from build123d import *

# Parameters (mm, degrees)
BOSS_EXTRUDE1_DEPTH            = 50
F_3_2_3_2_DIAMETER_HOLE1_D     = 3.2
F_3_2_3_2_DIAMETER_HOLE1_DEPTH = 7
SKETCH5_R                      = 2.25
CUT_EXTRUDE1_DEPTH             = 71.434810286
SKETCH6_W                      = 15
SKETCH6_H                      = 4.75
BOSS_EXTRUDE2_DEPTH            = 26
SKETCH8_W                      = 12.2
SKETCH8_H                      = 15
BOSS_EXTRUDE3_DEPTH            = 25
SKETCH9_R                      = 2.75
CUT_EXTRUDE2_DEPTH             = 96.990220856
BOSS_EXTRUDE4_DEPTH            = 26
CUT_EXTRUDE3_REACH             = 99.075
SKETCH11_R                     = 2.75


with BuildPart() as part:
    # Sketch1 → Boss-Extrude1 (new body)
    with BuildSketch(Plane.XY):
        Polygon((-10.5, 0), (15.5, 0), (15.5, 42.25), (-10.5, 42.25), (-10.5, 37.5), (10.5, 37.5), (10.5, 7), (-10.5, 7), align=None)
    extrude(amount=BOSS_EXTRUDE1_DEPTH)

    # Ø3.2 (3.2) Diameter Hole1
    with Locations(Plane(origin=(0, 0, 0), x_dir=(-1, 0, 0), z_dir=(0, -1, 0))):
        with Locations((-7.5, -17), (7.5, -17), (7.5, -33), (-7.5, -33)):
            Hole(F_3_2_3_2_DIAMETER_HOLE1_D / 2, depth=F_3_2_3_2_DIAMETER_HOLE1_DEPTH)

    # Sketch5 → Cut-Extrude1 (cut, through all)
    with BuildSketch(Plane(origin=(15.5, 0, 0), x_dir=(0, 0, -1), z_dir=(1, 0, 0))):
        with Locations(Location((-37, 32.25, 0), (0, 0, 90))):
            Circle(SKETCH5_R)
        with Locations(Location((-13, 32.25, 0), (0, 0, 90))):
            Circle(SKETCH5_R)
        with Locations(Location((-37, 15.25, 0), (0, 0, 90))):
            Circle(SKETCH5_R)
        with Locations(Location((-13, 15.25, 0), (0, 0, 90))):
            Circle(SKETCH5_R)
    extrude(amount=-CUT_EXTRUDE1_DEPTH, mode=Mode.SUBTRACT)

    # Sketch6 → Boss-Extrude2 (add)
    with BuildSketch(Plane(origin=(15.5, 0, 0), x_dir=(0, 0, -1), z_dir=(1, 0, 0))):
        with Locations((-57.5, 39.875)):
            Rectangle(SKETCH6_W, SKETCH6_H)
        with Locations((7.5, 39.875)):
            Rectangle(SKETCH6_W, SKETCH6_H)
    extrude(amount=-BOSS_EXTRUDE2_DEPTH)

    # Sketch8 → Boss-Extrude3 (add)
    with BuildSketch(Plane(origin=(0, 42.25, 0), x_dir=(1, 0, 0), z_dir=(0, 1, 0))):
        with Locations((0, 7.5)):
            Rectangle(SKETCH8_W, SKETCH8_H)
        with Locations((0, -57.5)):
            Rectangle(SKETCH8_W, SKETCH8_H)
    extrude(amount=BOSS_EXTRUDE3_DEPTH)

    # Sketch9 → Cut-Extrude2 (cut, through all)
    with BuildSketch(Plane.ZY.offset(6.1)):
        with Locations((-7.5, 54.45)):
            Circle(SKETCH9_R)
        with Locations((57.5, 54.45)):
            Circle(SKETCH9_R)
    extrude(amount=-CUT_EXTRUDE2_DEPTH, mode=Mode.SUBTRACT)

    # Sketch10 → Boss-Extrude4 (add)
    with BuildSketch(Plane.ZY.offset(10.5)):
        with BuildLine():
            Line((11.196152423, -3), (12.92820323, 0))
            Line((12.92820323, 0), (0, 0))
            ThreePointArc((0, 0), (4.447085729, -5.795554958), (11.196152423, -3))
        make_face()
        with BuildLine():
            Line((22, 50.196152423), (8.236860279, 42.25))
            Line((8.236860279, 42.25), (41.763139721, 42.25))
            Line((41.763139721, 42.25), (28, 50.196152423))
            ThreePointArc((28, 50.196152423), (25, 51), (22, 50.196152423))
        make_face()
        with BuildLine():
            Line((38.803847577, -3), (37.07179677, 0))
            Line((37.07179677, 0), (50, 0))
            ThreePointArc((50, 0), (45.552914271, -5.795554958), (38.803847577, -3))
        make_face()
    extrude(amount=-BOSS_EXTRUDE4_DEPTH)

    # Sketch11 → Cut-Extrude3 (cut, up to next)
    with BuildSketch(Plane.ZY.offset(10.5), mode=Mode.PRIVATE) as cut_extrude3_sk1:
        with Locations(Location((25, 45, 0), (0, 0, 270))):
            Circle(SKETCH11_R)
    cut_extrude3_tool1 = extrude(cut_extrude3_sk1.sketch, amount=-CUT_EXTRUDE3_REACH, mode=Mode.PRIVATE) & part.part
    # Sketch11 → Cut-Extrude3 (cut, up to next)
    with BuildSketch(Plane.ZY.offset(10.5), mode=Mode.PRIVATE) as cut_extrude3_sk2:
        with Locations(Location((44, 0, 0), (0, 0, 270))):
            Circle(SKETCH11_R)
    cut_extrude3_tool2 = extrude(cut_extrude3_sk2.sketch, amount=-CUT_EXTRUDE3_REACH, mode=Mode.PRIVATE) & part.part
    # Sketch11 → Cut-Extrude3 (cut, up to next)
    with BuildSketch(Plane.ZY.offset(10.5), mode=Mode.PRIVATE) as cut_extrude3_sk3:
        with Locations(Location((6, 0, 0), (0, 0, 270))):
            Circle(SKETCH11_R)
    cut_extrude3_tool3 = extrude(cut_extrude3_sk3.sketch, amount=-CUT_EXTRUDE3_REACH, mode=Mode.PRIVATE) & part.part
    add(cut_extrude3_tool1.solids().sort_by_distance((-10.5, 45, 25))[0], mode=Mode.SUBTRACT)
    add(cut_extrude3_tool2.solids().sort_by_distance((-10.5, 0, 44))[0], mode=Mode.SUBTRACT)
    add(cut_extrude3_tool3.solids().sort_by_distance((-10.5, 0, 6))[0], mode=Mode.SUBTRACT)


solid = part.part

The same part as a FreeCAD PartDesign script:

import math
import FreeCAD as App
import Part
import Sketcher
from FreeCAD import Vector
Q = App.Units.Quantity

doc = App.newDocument("Part")
params = doc.addObject("Spreadsheet::Sheet", "Params")
for row, (alias, value) in enumerate([
    ("sketch1_width", "26 mm"),
    ("sketch1_width2", "21 mm"),
    ("sketch1_height", "7 mm"),
    ("sketch1_height2", "30.5 mm"),
    ("sketch1_height3", "42.25 mm"),
    ("pad1_length", "50 mm"),
    ("sketch2_diameter", "3.2 mm"),
    ("hole_diameter", "3.2 mm"),
    ("hole_depth", "7 mm"),
    ("sketch3_diameter", "4.5 mm"),
    ("sketch4_height", "15 mm"),
    ("sketch4_width", "4.75 mm"),
    ("pad2_length", "26 mm"),
    ("sketch5_height", "15 mm"),
    ("sketch5_width", "12.2 mm"),
    ("pad3_length", "25 mm"),
    ("sketch6_diameter", "5.5 mm"),
    ("sketch7_radius", "6 mm"),
    ("pad4_length", "26 mm"),
    ("sketch8_diameter", "5.5 mm"),
    ("sketch9_diameter", "5.5 mm"),
    ("sketch10_diameter", "5.5 mm"),
], start=1):
    params.set(f"A{row}", alias)
    params.set(f"B{row}", "=" + value)
    params.setAlias(f"B{row}", alias)

body = doc.addObject("PartDesign::Body", "Body")

# Sketch on XY plane
sketch1 = doc.addObject("Sketcher::SketchObject", "Sketch")
body.addObject(sketch1)
sketch1.AttachmentSupport = (doc.XY_Plane, [""])
sketch1.MapMode = "FlatFace"
sketch1.addGeometry(Part.LineSegment(Vector(-10.5, 0, 0), Vector(15.5, 0, 0)), False)
sketch1.addGeometry(Part.LineSegment(Vector(15.5, 0, 0), Vector(15.5, 42.2, 0)), False)
sketch1.addGeometry(Part.LineSegment(Vector(15.5, 42.2, 0), Vector(-10.5, 42.2, 0)), False)
sketch1.addGeometry(Part.LineSegment(Vector(-10.5, 42.2, 0), Vector(-10.5, 37.5, 0)), False)
sketch1.addGeometry(Part.LineSegment(Vector(-10.5, 37.5, 0), Vector(10.5, 37.5, 0)), False)
sketch1.addGeometry(Part.LineSegment(Vector(10.5, 37.5, 0), Vector(10.5, 7, 0)), False)
sketch1.addGeometry(Part.LineSegment(Vector(10.5, 7, 0), Vector(-10.5, 7, 0)), False)
sketch1.addGeometry(Part.LineSegment(Vector(-10.5, 7, 0), Vector(-10.5, 0, 0)), False)
sketch1.addConstraint(Sketcher.Constraint("Coincident", 0, 2, 1, 1))
sketch1.addConstraint(Sketcher.Constraint("Coincident", 1, 2, 2, 1))
sketch1.addConstraint(Sketcher.Constraint("Coincident", 2, 2, 3, 1))
sketch1.addConstraint(Sketcher.Constraint("Coincident", 3, 2, 4, 1))
sketch1.addConstraint(Sketcher.Constraint("Coincident", 4, 2, 5, 1))
sketch1.addConstraint(Sketcher.Constraint("Coincident", 5, 2, 6, 1))
sketch1.addConstraint(Sketcher.Constraint("Coincident", 6, 2, 7, 1))
sketch1.addConstraint(Sketcher.Constraint("Coincident", 7, 2, 0, 1))
sketch1.addConstraint(Sketcher.Constraint("Horizontal", 0))
sketch1.addConstraint(Sketcher.Constraint("Vertical", 1))
sketch1.addConstraint(Sketcher.Constraint("Horizontal", 2))
sketch1.addConstraint(Sketcher.Constraint("Vertical", 3))
sketch1.addConstraint(Sketcher.Constraint("Horizontal", 4))
sketch1.addConstraint(Sketcher.Constraint("Vertical", 5))
sketch1.addConstraint(Sketcher.Constraint("Horizontal", 6))
sketch1.addConstraint(Sketcher.Constraint("Vertical", 7))
sketch1.addConstraint(Sketcher.Constraint("PointOnObject", 0, 2, -1))
sketch1.addConstraint(Sketcher.Constraint("Vertical", 3, 2, 6, 2))
sketch1.addConstraint(Sketcher.Constraint("DistanceX", 0, 1, 0, 2, Q("26 mm")))
sketch1.addConstraint(Sketcher.Constraint("DistanceX", 4, 1, 4, 2, Q("21 mm")))
sketch1.addConstraint(Sketcher.Constraint("DistanceY", 7, 2, 7, 1, Q("7 mm")))
sketch1.addConstraint(Sketcher.Constraint("DistanceY", 5, 2, 5, 1, Q("30.5 mm")))
sketch1.addConstraint(Sketcher.Constraint("DistanceY", 1, 1, 1, 2, Q("42.25 mm")))
sketch1.addConstraint(Sketcher.Constraint("DistanceX", -1, 1, 0, 2, Q("15.5 mm")))
sketch1.setExpression("Constraints[18]", "Params.sketch1_width")
sketch1.setExpression("Constraints[19]", "Params.sketch1_width2")
sketch1.setExpression("Constraints[20]", "Params.sketch1_height")
sketch1.setExpression("Constraints[21]", "Params.sketch1_height2")
sketch1.setExpression("Constraints[22]", "Params.sketch1_height3")
pad1 = doc.addObject("PartDesign::Pad", "Pad")
body.addObject(pad1)
pad1.Profile = sketch1
pad1.setExpression("Length", "Params.pad1_length")

# Sketch on XZ plane
sketch2 = doc.addObject("Sketcher::SketchObject", "Sketch001")
body.addObject(sketch2)
sketch2.AttachmentSupport = (doc.XZ_Plane, [""])
sketch2.MapMode = "FlatFace"
sketch2.addGeometry(Part.Circle(Vector(7.5, 17, 0), Vector(0, 0, 1), 1.6), False)
sketch2.addGeometry(Part.Circle(Vector(-7.5, 17, 0), Vector(0, 0, 1), 1.6), False)
sketch2.addGeometry(Part.Circle(Vector(-7.5, 33, 0), Vector(0, 0, 1), 1.6), False)
sketch2.addGeometry(Part.Circle(Vector(7.5, 33, 0), Vector(0, 0, 1), 1.6), False)
sketch2.addConstraint(Sketcher.Constraint("Equal", 0, 1))
sketch2.addConstraint(Sketcher.Constraint("Equal", 1, 2))
sketch2.addConstraint(Sketcher.Constraint("Equal", 2, 3))
sketch2.addConstraint(Sketcher.Constraint("Symmetric", 0, 3, 1, 3, -2))
sketch2.addConstraint(Sketcher.Constraint("Symmetric", 2, 3, 3, 3, -2))
sketch2.addConstraint(Sketcher.Constraint("Vertical", 1, 3, 2, 3))
sketch2.addConstraint(Sketcher.Constraint("Diameter", 0, Q("3.2 mm")))
sketch2.addConstraint(Sketcher.Constraint("DistanceY", -1, 1, 0, 3, Q("17 mm")))
sketch2.addConstraint(Sketcher.Constraint("DistanceY", -1, 1, 2, 3, Q("33 mm")))
sketch2.addConstraint(Sketcher.Constraint("DistanceX", 1, 3, 0, 3, Q("15 mm")))
sketch2.setExpression("Constraints[6]", "Params.sketch2_diameter")
doc.recompute()
hole = doc.addObject("PartDesign::Hole", "Hole")
body.addObject(hole)
hole.Profile = sketch2
hole.ThreadType = "None"
hole.setExpression("Diameter", "Params.hole_diameter")
hole.DepthType = "Dimension"
hole.setExpression("Depth", "Params.hole_depth")
hole.DrillPoint = "Flat"

# Sketch on YZ plane
sketch3 = doc.addObject("Sketcher::SketchObject", "Sketch002")
body.addObject(sketch3)
sketch3.AttachmentSupport = (doc.YZ_Plane, [""])
sketch3.MapMode = "FlatFace"
sketch3.AttachmentOffset = App.Placement(Vector(0, 0, 15.5), App.Rotation())
sketch3.addGeometry(Part.Circle(Vector(32.2, 37, 0), Vector(0, 0, 1), 2.2), False)
sketch3.addGeometry(Part.Circle(Vector(32.2, 13, 0), Vector(0, 0, 1), 2.2), False)
sketch3.addGeometry(Part.Circle(Vector(15.2, 37, 0), Vector(0, 0, 1), 2.2), False)
sketch3.addGeometry(Part.Circle(Vector(15.2, 13, 0), Vector(0, 0, 1), 2.2), False)
sketch3.addConstraint(Sketcher.Constraint("Equal", 0, 1))
sketch3.addConstraint(Sketcher.Constraint("Equal", 1, 2))
sketch3.addConstraint(Sketcher.Constraint("Equal", 2, 3))
sketch3.addConstraint(Sketcher.Constraint("Horizontal", 0, 3, 2, 3))
sketch3.addConstraint(Sketcher.Constraint("Horizontal", 1, 3, 3, 3))
sketch3.addConstraint(Sketcher.Constraint("Vertical", 0, 3, 1, 3))
sketch3.addConstraint(Sketcher.Constraint("Vertical", 2, 3, 3, 3))
sketch3.addConstraint(Sketcher.Constraint("Diameter", 0, Q("4.5 mm")))
sketch3.addConstraint(Sketcher.Constraint("DistanceY", -1, 1, 0, 3, Q("37 mm")))
sketch3.addConstraint(Sketcher.Constraint("DistanceY", -1, 1, 1, 3, Q("13 mm")))
sketch3.addConstraint(Sketcher.Constraint("DistanceX", 2, 3, 0, 3, Q("17 mm")))
sketch3.addConstraint(Sketcher.Constraint("DistanceX", -1, 1, 0, 3, Q("32.25 mm")))
sketch3.setExpression("Constraints[7]", "Params.sketch3_diameter")
pocket1 = doc.addObject("PartDesign::Pocket", "Pocket")
body.addObject(pocket1)
pocket1.Profile = sketch3
pocket1.Type = "ThroughAll"

# Sketch on YZ plane
sketch4 = doc.addObject("Sketcher::SketchObject", "Sketch003")
body.addObject(sketch4)
sketch4.AttachmentSupport = (doc.YZ_Plane, [""])
sketch4.MapMode = "FlatFace"
sketch4.AttachmentOffset = App.Placement(Vector(0, 0, 15.5), App.Rotation())
sketch4.addGeometry(Part.LineSegment(Vector(42.2, 65, 0), Vector(37.5, 65, 0)), False)
sketch4.addGeometry(Part.LineSegment(Vector(37.5, 65, 0), Vector(37.5, 50, 0)), False)
sketch4.addGeometry(Part.LineSegment(Vector(37.5, 50, 0), Vector(42.2, 50, 0)), False)
sketch4.addGeometry(Part.LineSegment(Vector(42.2, 50, 0), Vector(42.2, 65, 0)), False)
sketch4.addGeometry(Part.LineSegment(Vector(42.2, 0, 0), Vector(37.5, 0, 0)), False)
sketch4.addGeometry(Part.LineSegment(Vector(37.5, 0, 0), Vector(37.5, -15, 0)), False)
sketch4.addGeometry(Part.LineSegment(Vector(37.5, -15, 0), Vector(42.2, -15, 0)), False)
sketch4.addGeometry(Part.LineSegment(Vector(42.2, -15, 0), Vector(42.2, 0, 0)), False)
sketch4.addConstraint(Sketcher.Constraint("Coincident", 0, 2, 1, 1))
sketch4.addConstraint(Sketcher.Constraint("Coincident", 1, 2, 2, 1))
sketch4.addConstraint(Sketcher.Constraint("Coincident", 2, 2, 3, 1))
sketch4.addConstraint(Sketcher.Constraint("Coincident", 3, 2, 0, 1))
sketch4.addConstraint(Sketcher.Constraint("Coincident", 4, 2, 5, 1))
sketch4.addConstraint(Sketcher.Constraint("Coincident", 5, 2, 6, 1))
sketch4.addConstraint(Sketcher.Constraint("Coincident", 6, 2, 7, 1))
sketch4.addConstraint(Sketcher.Constraint("Coincident", 7, 2, 4, 1))
sketch4.addConstraint(Sketcher.Constraint("Horizontal", 0))
sketch4.addConstraint(Sketcher.Constraint("Vertical", 1))
sketch4.addConstraint(Sketcher.Constraint("Horizontal", 2))
sketch4.addConstraint(Sketcher.Constraint("Vertical", 3))
sketch4.addConstraint(Sketcher.Constraint("Horizontal", 4))
sketch4.addConstraint(Sketcher.Constraint("Vertical", 5))
sketch4.addConstraint(Sketcher.Constraint("Horizontal", 6))
sketch4.addConstraint(Sketcher.Constraint("Vertical", 7))
sketch4.addConstraint(Sketcher.Constraint("PointOnObject", 4, 2, -1))
sketch4.addConstraint(Sketcher.Constraint("Vertical", 1, 2, 4, 2))
sketch4.addConstraint(Sketcher.Constraint("Vertical", 3, 2, 6, 2))
sketch4.addConstraint(Sketcher.Constraint("Equal", 3, 5))
sketch4.addConstraint(Sketcher.Constraint("DistanceY", 1, 2, 1, 1, Q("15 mm")))
sketch4.addConstraint(Sketcher.Constraint("DistanceY", -1, 1, 0, 2, Q("65 mm")))
sketch4.addConstraint(Sketcher.Constraint("DistanceX", 0, 2, 0, 1, Q("4.75 mm")))
sketch4.addConstraint(Sketcher.Constraint("DistanceX", -1, 1, 0, 2, Q("37.5 mm")))
sketch4.setExpression("Constraints[20]", "Params.sketch4_height")
sketch4.setExpression("Constraints[22]", "Params.sketch4_width")
pad2 = doc.addObject("PartDesign::Pad", "Pad001")
body.addObject(pad2)
pad2.Profile = sketch4
pad2.setExpression("Length", "Params.pad2_length")
pad2.Reversed = True

# Sketch on XZ plane
sketch5 = doc.addObject("Sketcher::SketchObject", "Sketch004")
body.addObject(sketch5)
sketch5.AttachmentSupport = (doc.XZ_Plane, [""])
sketch5.MapMode = "FlatFace"
sketch5.AttachmentOffset = App.Placement(Vector(0, 0, -42.25), App.Rotation())
sketch5.addGeometry(Part.LineSegment(Vector(-6, -15, 0), Vector(-6, 0, 0)), False)
sketch5.addGeometry(Part.LineSegment(Vector(-6, 0, 0), Vector(6, 0, 0)), False)
sketch5.addGeometry(Part.LineSegment(Vector(6, 0, 0), Vector(6, -15, 0)), False)
sketch5.addGeometry(Part.LineSegment(Vector(6, -15, 0), Vector(-6, -15, 0)), False)
sketch5.addGeometry(Part.LineSegment(Vector(-6, 50, 0), Vector(-6, 65, 0)), False)
sketch5.addGeometry(Part.LineSegment(Vector(-6, 65, 0), Vector(6, 65, 0)), False)
sketch5.addGeometry(Part.LineSegment(Vector(6, 65, 0), Vector(6, 50, 0)), False)
sketch5.addGeometry(Part.LineSegment(Vector(6, 50, 0), Vector(-6, 50, 0)), False)
sketch5.addConstraint(Sketcher.Constraint("Coincident", 0, 2, 1, 1))
sketch5.addConstraint(Sketcher.Constraint("Coincident", 1, 2, 2, 1))
sketch5.addConstraint(Sketcher.Constraint("Coincident", 2, 2, 3, 1))
sketch5.addConstraint(Sketcher.Constraint("Coincident", 3, 2, 0, 1))
sketch5.addConstraint(Sketcher.Constraint("Coincident", 4, 2, 5, 1))
sketch5.addConstraint(Sketcher.Constraint("Coincident", 5, 2, 6, 1))
sketch5.addConstraint(Sketcher.Constraint("Coincident", 6, 2, 7, 1))
sketch5.addConstraint(Sketcher.Constraint("Coincident", 7, 2, 4, 1))
sketch5.addConstraint(Sketcher.Constraint("Vertical", 0))
sketch5.addConstraint(Sketcher.Constraint("Horizontal", 1))
sketch5.addConstraint(Sketcher.Constraint("Vertical", 2))
sketch5.addConstraint(Sketcher.Constraint("Horizontal", 3))
sketch5.addConstraint(Sketcher.Constraint("Vertical", 4))
sketch5.addConstraint(Sketcher.Constraint("Horizontal", 5))
sketch5.addConstraint(Sketcher.Constraint("Vertical", 6))
sketch5.addConstraint(Sketcher.Constraint("Horizontal", 7))
sketch5.addConstraint(Sketcher.Constraint("Symmetric", 0, 2, 1, 2, -1, 1))
sketch5.addConstraint(Sketcher.Constraint("Vertical", 3, 2, 4, 2))
sketch5.addConstraint(Sketcher.Constraint("Vertical", 2, 2, 5, 2))
sketch5.addConstraint(Sketcher.Constraint("Equal", 2, 4))
sketch5.addConstraint(Sketcher.Constraint("DistanceY", 0, 1, 0, 2, Q("15 mm")))
sketch5.addConstraint(Sketcher.Constraint("DistanceX", 1, 1, 1, 2, Q("12.2 mm")))
sketch5.addConstraint(Sketcher.Constraint("DistanceY", -1, 1, 4, 2, Q("65 mm")))
sketch5.setExpression("Constraints[20]", "Params.sketch5_height")
sketch5.setExpression("Constraints[21]", "Params.sketch5_width")
pad3 = doc.addObject("PartDesign::Pad", "Pad002")
body.addObject(pad3)
pad3.Profile = sketch5
pad3.setExpression("Length", "Params.pad3_length")
pad3.Reversed = True

# Sketch on YZ plane
sketch6 = doc.addObject("Sketcher::SketchObject", "Sketch005")
body.addObject(sketch6)
sketch6.AttachmentSupport = (doc.YZ_Plane, [""])
sketch6.MapMode = "FlatFace"
sketch6.AttachmentOffset = App.Placement(Vector(0, 0, -6.1), App.Rotation())
sketch6.addGeometry(Part.Circle(Vector(54.5, -7.5, 0), Vector(0, 0, 1), 2.8), False)
sketch6.addGeometry(Part.Circle(Vector(54.5, 57.5, 0), Vector(0, 0, 1), 2.8), False)
sketch6.addConstraint(Sketcher.Constraint("Equal", 0, 1))
sketch6.addConstraint(Sketcher.Constraint("Vertical", 0, 3, 1, 3))
sketch6.addConstraint(Sketcher.Constraint("Diameter", 0, Q("5.5 mm")))
sketch6.addConstraint(Sketcher.Constraint("DistanceY", 0, 3, 1, 3, Q("65 mm")))
sketch6.addConstraint(Sketcher.Constraint("DistanceY", 0, 3, -1, 1, Q("7.5 mm")))
sketch6.addConstraint(Sketcher.Constraint("DistanceX", -1, 1, 0, 3, Q("54.45 mm")))
sketch6.setExpression("Constraints[2]", "Params.sketch6_diameter")
pocket2 = doc.addObject("PartDesign::Pocket", "Pocket001")
body.addObject(pocket2)
pocket2.Profile = sketch6
pocket2.Type = "ThroughAll"
pocket2.Reversed = True

# Sketch on YZ plane
sketch7 = doc.addObject("Sketcher::SketchObject", "Sketch006")
body.addObject(sketch7)
sketch7.AttachmentSupport = (doc.YZ_Plane, [""])
sketch7.MapMode = "FlatFace"
sketch7.AttachmentOffset = App.Placement(Vector(0, 0, -10.5), App.Rotation())
sketch7.addGeometry(Part.LineSegment(Vector(-3, 11.2, 0), Vector(0, 12.9, 0)), False)
sketch7.addGeometry(Part.LineSegment(Vector(0, 12.9, 0), Vector(0, 0, 0)), False)
sketch7.addGeometry(Part.ArcOfCircle(Part.Circle(Vector(0, 6, 0), Vector(0, 0, 1), 6), math.radians(120), math.radians(270)), False)
sketch7.addGeometry(Part.LineSegment(Vector(50.2, 22, 0), Vector(42.2, 8.2, 0)), False)
sketch7.addGeometry(Part.LineSegment(Vector(42.2, 8.2, 0), Vector(42.2, 41.8, 0)), False)
sketch7.addGeometry(Part.LineSegment(Vector(42.2, 41.8, 0), Vector(50.2, 28, 0)), False)
sketch7.addGeometry(Part.ArcOfCircle(Part.Circle(Vector(45, 25, 0), Vector(0, 0, 1), 6), math.radians(-30), math.radians(30)), False)
sketch7.addGeometry(Part.LineSegment(Vector(0, 37.1, 0), Vector(-3, 38.8, 0)), False)
sketch7.addGeometry(Part.ArcOfCircle(Part.Circle(Vector(0, 44, 0), Vector(0, 0, 1), 6), math.radians(90), math.radians(240)), False)
sketch7.addGeometry(Part.LineSegment(Vector(0, 50, 0), Vector(0, 37.1, 0)), False)
sketch7.addConstraint(Sketcher.Constraint("Coincident", 0, 2, 1, 1))
sketch7.addConstraint(Sketcher.Constraint("Coincident", 1, 2, 2, 2))
sketch7.addConstraint(Sketcher.Constraint("Tangent", 2, 1, 0, 1))
sketch7.addConstraint(Sketcher.Constraint("Coincident", 3, 2, 4, 1))
sketch7.addConstraint(Sketcher.Constraint("Coincident", 4, 2, 5, 1))
sketch7.addConstraint(Sketcher.Constraint("Tangent", 5, 2, 6, 2))
sketch7.addConstraint(Sketcher.Constraint("Tangent", 6, 1, 3, 1))
sketch7.addConstraint(Sketcher.Constraint("Tangent", 7, 2, 8, 2))
sketch7.addConstraint(Sketcher.Constraint("Coincident", 8, 1, 9, 1))
sketch7.addConstraint(Sketcher.Constraint("Coincident", 9, 2, 7, 1))
sketch7.addConstraint(Sketcher.Constraint("Vertical", 1))
sketch7.addConstraint(Sketcher.Constraint("Vertical", 4))
sketch7.addConstraint(Sketcher.Constraint("Vertical", 9))
sketch7.addConstraint(Sketcher.Constraint("Coincident", 1, 2, -1, 1))
sketch7.addConstraint(Sketcher.Constraint("Equal", 2, 6))
sketch7.addConstraint(Sketcher.Constraint("Equal", 6, 8))
sketch7.addConstraint(Sketcher.Constraint("PointOnObject", 2, 3, -2))
sketch7.addConstraint(Sketcher.Constraint("PointOnObject", 8, 3, -2))
sketch7.addConstraint(Sketcher.Constraint("PointOnObject", 8, 1, -2))
sketch7.addConstraint(Sketcher.Constraint("Perpendicular", 0, 5))
sketch7.addConstraint(Sketcher.Constraint("Perpendicular", 3, 7))
sketch7.addConstraint(Sketcher.Constraint("Vertical", 5, 2, 6, 1))
sketch7.addConstraint(Sketcher.Constraint("Radius", 2, Q("6 mm")))
sketch7.addConstraint(Sketcher.Constraint("Angle", 0, Q("30 deg")))
sketch7.addConstraint(Sketcher.Constraint("DistanceX", -1, 1, 6, 3, Q("45 mm")))
sketch7.addConstraint(Sketcher.Constraint("DistanceY", -1, 1, 6, 3, Q("25 mm")))
sketch7.addConstraint(Sketcher.Constraint("DistanceY", -1, 1, 8, 3, Q("44 mm")))
sketch7.addConstraint(Sketcher.Constraint("DistanceX", -1, 1, 3, 2, Q("42.25 mm")))
sketch7.setExpression("Constraints[22]", "Params.sketch7_radius")
pad4 = doc.addObject("PartDesign::Pad", "Pad003")
body.addObject(pad4)
pad4.Profile = sketch7
pad4.setExpression("Length", "Params.pad4_length")

# Sketch on YZ plane
sketch8 = doc.addObject("Sketcher::SketchObject", "Sketch007")
body.addObject(sketch8)
sketch8.AttachmentSupport = (doc.YZ_Plane, [""])
sketch8.MapMode = "FlatFace"
sketch8.AttachmentOffset = App.Placement(Vector(0, 0, -10.5), App.Rotation())
sketch8.addGeometry(Part.Circle(Vector(45, 25, 0), Vector(0, 0, 1), 2.8), False)
sketch8.addConstraint(Sketcher.Constraint("Diameter", 0, Q("5.5 mm")))
sketch8.addConstraint(Sketcher.Constraint("DistanceX", -1, 1, 0, 3, Q("45 mm")))
sketch8.addConstraint(Sketcher.Constraint("DistanceY", -1, 1, 0, 3, Q("25 mm")))
sketch8.setExpression("Constraints[0]", "Params.sketch8_diameter")
pocket3 = doc.addObject("PartDesign::Pocket", "Pocket002")
body.addObject(pocket3)
pocket3.Profile = sketch8
pocket3.Type = "UpToFirst"
pocket3.Reversed = True

# Sketch on YZ plane
sketch9 = doc.addObject("Sketcher::SketchObject", "Sketch008")
body.addObject(sketch9)
sketch9.AttachmentSupport = (doc.YZ_Plane, [""])
sketch9.MapMode = "FlatFace"
sketch9.AttachmentOffset = App.Placement(Vector(0, 0, -10.5), App.Rotation())
sketch9.addGeometry(Part.Circle(Vector(0, 44, 0), Vector(0, 0, 1), 2.8), False)
sketch9.addConstraint(Sketcher.Constraint("PointOnObject", 0, 3, -2))
sketch9.addConstraint(Sketcher.Constraint("Diameter", 0, Q("5.5 mm")))
sketch9.addConstraint(Sketcher.Constraint("DistanceY", -1, 1, 0, 3, Q("44 mm")))
sketch9.setExpression("Constraints[1]", "Params.sketch9_diameter")
pocket4 = doc.addObject("PartDesign::Pocket", "Pocket003")
body.addObject(pocket4)
pocket4.Profile = sketch9
pocket4.Type = "UpToFirst"
pocket4.Reversed = True

# Sketch on YZ plane
sketch10 = doc.addObject("Sketcher::SketchObject", "Sketch009")
body.addObject(sketch10)
sketch10.AttachmentSupport = (doc.YZ_Plane, [""])
sketch10.MapMode = "FlatFace"
sketch10.AttachmentOffset = App.Placement(Vector(0, 0, -10.5), App.Rotation())
sketch10.addGeometry(Part.Circle(Vector(0, 6, 0), Vector(0, 0, 1), 2.8), False)
sketch10.addConstraint(Sketcher.Constraint("PointOnObject", 0, 3, -2))
sketch10.addConstraint(Sketcher.Constraint("Diameter", 0, Q("5.5 mm")))
sketch10.addConstraint(Sketcher.Constraint("DistanceY", -1, 1, 0, 3, Q("6 mm")))
sketch10.setExpression("Constraints[1]", "Params.sketch10_diameter")
pocket5 = doc.addObject("PartDesign::Pocket", "Pocket004")
body.addObject(pocket5)
pocket5.Profile = sketch10
pocket5.Type = "UpToFirst"
pocket5.Reversed = True

doc.recompute()
